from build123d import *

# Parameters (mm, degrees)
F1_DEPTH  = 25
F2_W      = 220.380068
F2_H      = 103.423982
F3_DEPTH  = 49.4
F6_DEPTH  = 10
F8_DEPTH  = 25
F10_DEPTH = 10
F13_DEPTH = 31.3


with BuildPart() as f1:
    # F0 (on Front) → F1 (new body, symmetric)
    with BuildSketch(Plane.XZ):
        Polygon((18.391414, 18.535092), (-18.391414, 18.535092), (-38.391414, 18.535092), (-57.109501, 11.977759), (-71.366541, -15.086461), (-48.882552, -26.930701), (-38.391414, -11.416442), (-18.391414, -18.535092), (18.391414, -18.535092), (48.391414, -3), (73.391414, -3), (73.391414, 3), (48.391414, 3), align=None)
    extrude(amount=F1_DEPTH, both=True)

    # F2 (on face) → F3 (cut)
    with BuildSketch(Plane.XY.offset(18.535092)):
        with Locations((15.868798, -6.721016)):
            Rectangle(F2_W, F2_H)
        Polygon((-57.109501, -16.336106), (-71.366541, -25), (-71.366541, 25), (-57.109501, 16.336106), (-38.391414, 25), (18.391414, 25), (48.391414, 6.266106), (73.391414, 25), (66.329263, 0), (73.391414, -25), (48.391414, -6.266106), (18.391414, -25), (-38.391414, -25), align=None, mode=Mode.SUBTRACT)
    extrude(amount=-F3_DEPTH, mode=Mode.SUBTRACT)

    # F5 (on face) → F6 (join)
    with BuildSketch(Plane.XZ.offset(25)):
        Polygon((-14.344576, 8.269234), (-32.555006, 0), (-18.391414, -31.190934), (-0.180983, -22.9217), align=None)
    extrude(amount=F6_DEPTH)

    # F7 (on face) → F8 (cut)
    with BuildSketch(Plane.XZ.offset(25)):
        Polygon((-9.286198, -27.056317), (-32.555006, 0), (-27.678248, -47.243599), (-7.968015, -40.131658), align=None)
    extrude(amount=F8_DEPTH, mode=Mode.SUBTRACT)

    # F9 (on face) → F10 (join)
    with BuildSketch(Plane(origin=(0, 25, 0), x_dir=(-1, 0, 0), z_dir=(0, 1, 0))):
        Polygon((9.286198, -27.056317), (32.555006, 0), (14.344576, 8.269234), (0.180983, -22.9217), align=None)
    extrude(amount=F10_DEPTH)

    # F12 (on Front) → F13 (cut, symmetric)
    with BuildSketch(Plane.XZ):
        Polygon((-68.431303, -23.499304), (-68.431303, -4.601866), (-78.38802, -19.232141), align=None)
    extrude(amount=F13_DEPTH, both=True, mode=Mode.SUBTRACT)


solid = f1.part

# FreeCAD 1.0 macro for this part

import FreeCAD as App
import Part
import Sketcher
Q = App.Units.Quantity


def add_polygon(sketch, points):
    """Adds a closed chain of lines whose ends are joined by coincident constraints."""
    first, n = sketch.GeometryCount, len(points)
    for a, b in zip(points, points[1:] + points[:1]):
        sketch.addGeometry(Part.LineSegment(App.Vector(*a, 0), App.Vector(*b, 0)), False)
    for i in range(n):
        sketch.addConstraint(Sketcher.Constraint("Coincident", first + i, 2, first + (i + 1) % n, 1))

doc = App.newDocument("Part")
body = doc.addObject("PartDesign::Body", "Body")

sketch1 = doc.addObject("Sketcher::SketchObject", "Sketch")
body.addObject(sketch1)
sketch1.AttachmentSupport = (doc.XZ_Plane, [""])
sketch1.MapMode = "FlatFace"
add_polygon(sketch1, [(18.391414, 18.535092), (-38.391414, 18.535092), (-57.109501, 11.977759), (-71.366541, -15.086461), (-48.882552, -26.930701), (-38.391414, -11.416442), (-18.391414, -18.535092), (18.391414, -18.535092), (48.391414, -3), (73.391414, -3), (73.391414, 3), (48.391414, 3)])
sketch1.addConstraint(Sketcher.Constraint("Horizontal", 0))
sketch1.addConstraint(Sketcher.Constraint("Horizontal", 6))
sketch1.addConstraint(Sketcher.Constraint("Horizontal", 8))
sketch1.addConstraint(Sketcher.Constraint("Vertical", 9))
sketch1.addConstraint(Sketcher.Constraint("Horizontal", 10))
sketch1.addConstraint(Sketcher.Constraint("Symmetric", 5, 2, 11, 2, -1, 1))
sketch1.addConstraint(Sketcher.Constraint("Symmetric", 7, 2, 10, 2, -1))
sketch1.addConstraint(Sketcher.Constraint("Perpendicular", 2, 3))
sketch1.addConstraint(Sketcher.Constraint("Vertical", 0, 2, 4, 2))
sketch1.addConstraint(Sketcher.Constraint("Vertical", 6, 2, 11, 2))
sketch1.addConstraint(Sketcher.Constraint("DistanceX", 8, 1, 8, 2, Q("25 mm")))
sketch1.addConstraint(Sketcher.Constraint("DistanceY", 9, 1, 9, 2, Q("6 mm")))
sketch1.addConstraint(Sketcher.Constraint("DistanceX", 4, 2, 5, 2, Q("20 mm")))
sketch1.addConstraint(Sketcher.Constraint("DistanceX", 6, 2, 7, 2, Q("30 mm")))
sketch1.addConstraint(Sketcher.Constraint("DistanceX", 6, 1, 6, 2, Q("36.782828 mm")))
sketch1.addConstraint(Sketcher.Constraint("DistanceX", 1, 2, -1, 1, Q("57.109501 mm")))
sketch1.addConstraint(Sketcher.Constraint("DistanceY", 3, 2, -1, 1, Q("26.930701 mm")))
sketch1.addConstraint(Sketcher.Constraint("DistanceY", 4, 2, 1, 2, Q("23.394201 mm")))
sketch1.addConstraint(Sketcher.Constraint("Distance", 1, Q("19.833441 mm")))
sketch1.addConstraint(Sketcher.Constraint("Distance", 2, Q("30.589789 mm")))
sketch1.addConstraint(Sketcher.Constraint("Distance", 5, Q("21.229112 mm")))
sketch1.addConstraint(Sketcher.Constraint("DistanceX", 2, 2, -1, 1, Q("71.366541 mm")))
pad1 = doc.addObject("PartDesign::Pad", "Pad")
body.addObject(pad1)
pad1.Profile = sketch1
pad1.Length = 50
pad1.Midplane = True

sketch2 = doc.addObject("Sketcher::SketchObject", "Sketch001")
body.addObject(sketch2)
sketch2.AttachmentSupport = (doc.XY_Plane, [""])
sketch2.MapMode = "FlatFace"
sketch2.AttachmentOffset = App.Placement(App.Vector(0, 0, 18.535092), App.Rotation())
add_polygon(sketch2, [(-94.321236, 44.990975), (-94.321236, -58.433007), (126.058832, -58.433007), (126.058832, 44.990975)])
add_polygon(sketch2, [(-38.391414, -25), (-57.109501, -16.336106), (-71.366541, -25), (-71.366541, 25), (-57.109501, 16.336106), (-38.391414, 25), (18.391414, 25), (48.391414, 6.266106), (73.391414, 25), (66.329263, 0), (73.391414, -25), (48.391414, -6.266106), (18.391414, -25)])
sketch2.addConstraint(Sketcher.Constraint("Vertical", 0))
sketch2.addConstraint(Sketcher.Constraint("Horizontal", 1))
sketch2.addConstraint(Sketcher.Constraint("Vertical", 2))
sketch2.addConstraint(Sketcher.Constraint("Horizontal", 3))
sketch2.addConstraint(Sketcher.Constraint("Vertical", 6))
sketch2.addConstraint(Sketcher.Constraint("Horizontal", 9))
sketch2.addConstraint(Sketcher.Constraint("Horizontal", 16))
sketch2.addConstraint(Sketcher.Constraint("Symmetric", 4, 2, 7, 2, -1))
sketch2.addConstraint(Sketcher.Constraint("Symmetric", 11, 2, 13, 2, -1))
sketch2.addConstraint(Sketcher.Constraint("Symmetric", 10, 2, 14, 2, -1))
sketch2.addConstraint(Sketcher.Constraint("Symmetric", 9, 2, 15, 2, -1))
sketch2.addConstraint(Sketcher.Constraint("PointOnObject", 12, 2, -1))
sketch2.addConstraint(Sketcher.Constraint("Horizontal", 6, 2, 8, 2))
sketch2.addConstraint(Sketcher.Constraint("Horizontal", 9, 2, 11, 2))
sketch2.addConstraint(Sketcher.Constraint("Horizontal", 5, 2, 13, 2))
sketch2.addConstraint(Sketcher.Constraint("Vertical", 8, 2, 16, 2))
sketch2.addConstraint(Sketcher.Constraint("DistanceY", 6, 1, 6, 2, Q("50 mm")))
sketch2.addConstraint(Sketcher.Constraint("DistanceX", 9, 2, 10, 2, Q("30 mm")))
sketch2.addConstraint(Sketcher.Constraint("DistanceX", 10, 2, 11, 2, Q("25 mm")))
sketch2.addConstraint(Sketcher.Constraint("DistanceY", 10, 2, 7, 2, Q("10.07 mm")))
sketch2.addConstraint(Sketcher.Constraint("DistanceX", 1, 1, 1, 2, Q("220.380068 mm")))
sketch2.addConstraint(Sketcher.Constraint("DistanceY", 0, 2, 0, 1, Q("103.423982 mm")))
sketch2.addConstraint(Sketcher.Constraint("DistanceX", 4, 2, -1, 1, Q("57.109501 mm")))
sketch2.addConstraint(Sketcher.Constraint("DistanceY", 0, 2, 4, 2, Q("42.096901 mm")))
sketch2.addConstraint(Sketcher.Constraint("Distance", 4, Q("20.625951 mm")))
sketch2.addConstraint(Sketcher.Constraint("Distance", 11, Q("31.240339 mm")))
sketch2.addConstraint(Sketcher.Constraint("DistanceX", 9, 1, 9, 2, Q("56.782828 mm")))
sketch2.addConstraint(Sketcher.Constraint("DistanceX", -1, 1, 1, 2, Q("126.058832 mm")))
sketch2.addConstraint(Sketcher.Constraint("DistanceX", 5, 2, -1, 1, Q("71.366541 mm")))
sketch2.addConstraint(Sketcher.Constraint("DistanceX", 10, 2, 12, 2, Q("17.937849 mm")))
pocket1 = doc.addObject("PartDesign::Pocket", "Pocket")
body.addObject(pocket1)
pocket1.Profile = sketch2
pocket1.Length = 49.4

sketch3 = doc.addObject("Sketcher::SketchObject", "Sketch002")
body.addObject(sketch3)
sketch3.AttachmentSupport = (doc.XZ_Plane, [""])
sketch3.MapMode = "FlatFace"
sketch3.AttachmentOffset = App.Placement(App.Vector(0, 0, 25), App.Rotation())
add_polygon(sketch3, [(-14.344576, 8.269234), (-32.555006, 0), (-18.391414, -31.190934), (-0.180983, -22.9217)])
sketch3.addConstraint(Sketcher.Constraint("PointOnObject", 0, 2, -1))
sketch3.addConstraint(Sketcher.Constraint("Perpendicular", 0, 1))
sketch3.addConstraint(Sketcher.Constraint("Perpendicular", 1, 2))
sketch3.addConstraint(Sketcher.Constraint("Perpendicular", 2, 3))
sketch3.addConstraint(Sketcher.Constraint("Distance", 0, Q("20 mm")))
sketch3.addConstraint(Sketcher.Constraint("DistanceY", 2, 2, -1, 1, Q("22.9217 mm")))
sketch3.addConstraint(Sketcher.Constraint("Distance", 1, Q("34.256119 mm")))
sketch3.addConstraint(Sketcher.Constraint("DistanceX", 0, 2, -1, 1, Q("32.555006 mm")))
pad2 = doc.addObject("PartDesign::Pad", "Pad001")
body.addObject(pad2)
pad2.Profile = sketch3
pad2.Length = 10

sketch4 = doc.addObject("Sketcher::SketchObject", "Sketch003")
body.addObject(sketch4)
sketch4.AttachmentSupport = (doc.XZ_Plane, [""])
sketch4.MapMode = "FlatFace"
sketch4.AttachmentOffset = App.Placement(App.Vector(0, 0, 25), App.Rotation())
add_polygon(sketch4, [(-9.286198, -27.056317), (-32.555006, 0), (-27.678248, -47.243599), (-7.968015, -40.131658)])
sketch4.addConstraint(Sketcher.Constraint("PointOnObject", 0, 2, -1))
sketch4.addConstraint(Sketcher.Constraint("DistanceY", 1, 2, -1, 1, Q("47.243599 mm")))
sketch4.addConstraint(Sketcher.Constraint("DistanceX", 3, 2, -1, 1, Q("9.286198 mm")))
sketch4.addConstraint(Sketcher.Constraint("Distance", 2, Q("20.954069 mm")))
sketch4.addConstraint(Sketcher.Constraint("Distance", 3, Q("13.141619 mm")))
sketch4.addConstraint(Sketcher.Constraint("DistanceX", 1, 2, -1, 1, Q("27.678248 mm")))
sketch4.addConstraint(Sketcher.Constraint("DistanceY", 2, 2, -1, 1, Q("40.131658 mm")))
sketch4.addConstraint(Sketcher.Constraint("DistanceX", 0, 2, 2, 2, Q("24.586991 mm")))
pocket2 = doc.addObject("PartDesign::Pocket", "Pocket001")
body.addObject(pocket2)
pocket2.Profile = sketch4
pocket2.Length = 25
pocket2.Reversed = True

sketch5 = doc.addObject("Sketcher::SketchObject", "Sketch004")
body.addObject(sketch5)
sketch5.AttachmentSupport = (doc.XZ_Plane, [""])
sketch5.MapMode = "FlatFace"
sketch5.AttachmentOffset = App.Placement(App.Vector(0, 0, -25), App.Rotation())
add_polygon(sketch5, [(-9.286198, -27.056317), (-32.555006, 0), (-14.344576, 8.269234), (-0.180983, -22.9217)])
sketch5.addConstraint(Sketcher.Constraint("PointOnObject", 0, 2, -1))
sketch5.addConstraint(Sketcher.Constraint("Perpendicular", 1, 2))
sketch5.addConstraint(Sketcher.Constraint("Perpendicular", 2, 3))
sketch5.addConstraint(Sketcher.Constraint("Distance", 1, Q("20 mm")))
sketch5.addConstraint(Sketcher.Constraint("Distance", 3, Q("10 mm")))
sketch5.addConstraint(Sketcher.Constraint("DistanceY", 2, 2, -1, 1, Q("22.9217 mm")))
sketch5.addConstraint(Sketcher.Constraint("DistanceX", 3, 2, -1, 1, Q("9.286198 mm")))
sketch5.addConstraint(Sketcher.Constraint("Distance", 2, Q("34.25612 mm")))
pad3 = doc.addObject("PartDesign::Pad", "Pad002")
body.addObject(pad3)
pad3.Profile = sketch5
pad3.Length = 10
pad3.Reversed = True

sketch6 = doc.addObject("Sketcher::SketchObject", "Sketch005")
body.addObject(sketch6)
sketch6.AttachmentSupport = (doc.XZ_Plane, [""])
sketch6.MapMode = "FlatFace"
add_polygon(sketch6, [(-68.431303, -23.499304), (-68.431303, -4.601866), (-78.38802, -19.232141)])
sketch6.addConstraint(Sketcher.Constraint("Vertical", 0))
sketch6.addConstraint(Sketcher.Constraint("DistanceY", 0, 1, 0, 2, Q("18.897438 mm")))
sketch6.addConstraint(Sketcher.Constraint("DistanceX", 1, 2, -1, 1, Q("78.38802 mm")))
sketch6.addConstraint(Sketcher.Constraint("DistanceY", 1, 2, -1, 1, Q("19.232141 mm")))
sketch6.addConstraint(Sketcher.Constraint("Distance", 1, Q("17.696925 mm")))
sketch6.addConstraint(Sketcher.Constraint("Distance", 2, Q("10.832585 mm")))
pocket3 = doc.addObject("PartDesign::Pocket", "Pocket002")
body.addObject(pocket3)
pocket3.Profile = sketch6
pocket3.Length = 62.6
pocket3.Midplane = True

doc.recompute()
